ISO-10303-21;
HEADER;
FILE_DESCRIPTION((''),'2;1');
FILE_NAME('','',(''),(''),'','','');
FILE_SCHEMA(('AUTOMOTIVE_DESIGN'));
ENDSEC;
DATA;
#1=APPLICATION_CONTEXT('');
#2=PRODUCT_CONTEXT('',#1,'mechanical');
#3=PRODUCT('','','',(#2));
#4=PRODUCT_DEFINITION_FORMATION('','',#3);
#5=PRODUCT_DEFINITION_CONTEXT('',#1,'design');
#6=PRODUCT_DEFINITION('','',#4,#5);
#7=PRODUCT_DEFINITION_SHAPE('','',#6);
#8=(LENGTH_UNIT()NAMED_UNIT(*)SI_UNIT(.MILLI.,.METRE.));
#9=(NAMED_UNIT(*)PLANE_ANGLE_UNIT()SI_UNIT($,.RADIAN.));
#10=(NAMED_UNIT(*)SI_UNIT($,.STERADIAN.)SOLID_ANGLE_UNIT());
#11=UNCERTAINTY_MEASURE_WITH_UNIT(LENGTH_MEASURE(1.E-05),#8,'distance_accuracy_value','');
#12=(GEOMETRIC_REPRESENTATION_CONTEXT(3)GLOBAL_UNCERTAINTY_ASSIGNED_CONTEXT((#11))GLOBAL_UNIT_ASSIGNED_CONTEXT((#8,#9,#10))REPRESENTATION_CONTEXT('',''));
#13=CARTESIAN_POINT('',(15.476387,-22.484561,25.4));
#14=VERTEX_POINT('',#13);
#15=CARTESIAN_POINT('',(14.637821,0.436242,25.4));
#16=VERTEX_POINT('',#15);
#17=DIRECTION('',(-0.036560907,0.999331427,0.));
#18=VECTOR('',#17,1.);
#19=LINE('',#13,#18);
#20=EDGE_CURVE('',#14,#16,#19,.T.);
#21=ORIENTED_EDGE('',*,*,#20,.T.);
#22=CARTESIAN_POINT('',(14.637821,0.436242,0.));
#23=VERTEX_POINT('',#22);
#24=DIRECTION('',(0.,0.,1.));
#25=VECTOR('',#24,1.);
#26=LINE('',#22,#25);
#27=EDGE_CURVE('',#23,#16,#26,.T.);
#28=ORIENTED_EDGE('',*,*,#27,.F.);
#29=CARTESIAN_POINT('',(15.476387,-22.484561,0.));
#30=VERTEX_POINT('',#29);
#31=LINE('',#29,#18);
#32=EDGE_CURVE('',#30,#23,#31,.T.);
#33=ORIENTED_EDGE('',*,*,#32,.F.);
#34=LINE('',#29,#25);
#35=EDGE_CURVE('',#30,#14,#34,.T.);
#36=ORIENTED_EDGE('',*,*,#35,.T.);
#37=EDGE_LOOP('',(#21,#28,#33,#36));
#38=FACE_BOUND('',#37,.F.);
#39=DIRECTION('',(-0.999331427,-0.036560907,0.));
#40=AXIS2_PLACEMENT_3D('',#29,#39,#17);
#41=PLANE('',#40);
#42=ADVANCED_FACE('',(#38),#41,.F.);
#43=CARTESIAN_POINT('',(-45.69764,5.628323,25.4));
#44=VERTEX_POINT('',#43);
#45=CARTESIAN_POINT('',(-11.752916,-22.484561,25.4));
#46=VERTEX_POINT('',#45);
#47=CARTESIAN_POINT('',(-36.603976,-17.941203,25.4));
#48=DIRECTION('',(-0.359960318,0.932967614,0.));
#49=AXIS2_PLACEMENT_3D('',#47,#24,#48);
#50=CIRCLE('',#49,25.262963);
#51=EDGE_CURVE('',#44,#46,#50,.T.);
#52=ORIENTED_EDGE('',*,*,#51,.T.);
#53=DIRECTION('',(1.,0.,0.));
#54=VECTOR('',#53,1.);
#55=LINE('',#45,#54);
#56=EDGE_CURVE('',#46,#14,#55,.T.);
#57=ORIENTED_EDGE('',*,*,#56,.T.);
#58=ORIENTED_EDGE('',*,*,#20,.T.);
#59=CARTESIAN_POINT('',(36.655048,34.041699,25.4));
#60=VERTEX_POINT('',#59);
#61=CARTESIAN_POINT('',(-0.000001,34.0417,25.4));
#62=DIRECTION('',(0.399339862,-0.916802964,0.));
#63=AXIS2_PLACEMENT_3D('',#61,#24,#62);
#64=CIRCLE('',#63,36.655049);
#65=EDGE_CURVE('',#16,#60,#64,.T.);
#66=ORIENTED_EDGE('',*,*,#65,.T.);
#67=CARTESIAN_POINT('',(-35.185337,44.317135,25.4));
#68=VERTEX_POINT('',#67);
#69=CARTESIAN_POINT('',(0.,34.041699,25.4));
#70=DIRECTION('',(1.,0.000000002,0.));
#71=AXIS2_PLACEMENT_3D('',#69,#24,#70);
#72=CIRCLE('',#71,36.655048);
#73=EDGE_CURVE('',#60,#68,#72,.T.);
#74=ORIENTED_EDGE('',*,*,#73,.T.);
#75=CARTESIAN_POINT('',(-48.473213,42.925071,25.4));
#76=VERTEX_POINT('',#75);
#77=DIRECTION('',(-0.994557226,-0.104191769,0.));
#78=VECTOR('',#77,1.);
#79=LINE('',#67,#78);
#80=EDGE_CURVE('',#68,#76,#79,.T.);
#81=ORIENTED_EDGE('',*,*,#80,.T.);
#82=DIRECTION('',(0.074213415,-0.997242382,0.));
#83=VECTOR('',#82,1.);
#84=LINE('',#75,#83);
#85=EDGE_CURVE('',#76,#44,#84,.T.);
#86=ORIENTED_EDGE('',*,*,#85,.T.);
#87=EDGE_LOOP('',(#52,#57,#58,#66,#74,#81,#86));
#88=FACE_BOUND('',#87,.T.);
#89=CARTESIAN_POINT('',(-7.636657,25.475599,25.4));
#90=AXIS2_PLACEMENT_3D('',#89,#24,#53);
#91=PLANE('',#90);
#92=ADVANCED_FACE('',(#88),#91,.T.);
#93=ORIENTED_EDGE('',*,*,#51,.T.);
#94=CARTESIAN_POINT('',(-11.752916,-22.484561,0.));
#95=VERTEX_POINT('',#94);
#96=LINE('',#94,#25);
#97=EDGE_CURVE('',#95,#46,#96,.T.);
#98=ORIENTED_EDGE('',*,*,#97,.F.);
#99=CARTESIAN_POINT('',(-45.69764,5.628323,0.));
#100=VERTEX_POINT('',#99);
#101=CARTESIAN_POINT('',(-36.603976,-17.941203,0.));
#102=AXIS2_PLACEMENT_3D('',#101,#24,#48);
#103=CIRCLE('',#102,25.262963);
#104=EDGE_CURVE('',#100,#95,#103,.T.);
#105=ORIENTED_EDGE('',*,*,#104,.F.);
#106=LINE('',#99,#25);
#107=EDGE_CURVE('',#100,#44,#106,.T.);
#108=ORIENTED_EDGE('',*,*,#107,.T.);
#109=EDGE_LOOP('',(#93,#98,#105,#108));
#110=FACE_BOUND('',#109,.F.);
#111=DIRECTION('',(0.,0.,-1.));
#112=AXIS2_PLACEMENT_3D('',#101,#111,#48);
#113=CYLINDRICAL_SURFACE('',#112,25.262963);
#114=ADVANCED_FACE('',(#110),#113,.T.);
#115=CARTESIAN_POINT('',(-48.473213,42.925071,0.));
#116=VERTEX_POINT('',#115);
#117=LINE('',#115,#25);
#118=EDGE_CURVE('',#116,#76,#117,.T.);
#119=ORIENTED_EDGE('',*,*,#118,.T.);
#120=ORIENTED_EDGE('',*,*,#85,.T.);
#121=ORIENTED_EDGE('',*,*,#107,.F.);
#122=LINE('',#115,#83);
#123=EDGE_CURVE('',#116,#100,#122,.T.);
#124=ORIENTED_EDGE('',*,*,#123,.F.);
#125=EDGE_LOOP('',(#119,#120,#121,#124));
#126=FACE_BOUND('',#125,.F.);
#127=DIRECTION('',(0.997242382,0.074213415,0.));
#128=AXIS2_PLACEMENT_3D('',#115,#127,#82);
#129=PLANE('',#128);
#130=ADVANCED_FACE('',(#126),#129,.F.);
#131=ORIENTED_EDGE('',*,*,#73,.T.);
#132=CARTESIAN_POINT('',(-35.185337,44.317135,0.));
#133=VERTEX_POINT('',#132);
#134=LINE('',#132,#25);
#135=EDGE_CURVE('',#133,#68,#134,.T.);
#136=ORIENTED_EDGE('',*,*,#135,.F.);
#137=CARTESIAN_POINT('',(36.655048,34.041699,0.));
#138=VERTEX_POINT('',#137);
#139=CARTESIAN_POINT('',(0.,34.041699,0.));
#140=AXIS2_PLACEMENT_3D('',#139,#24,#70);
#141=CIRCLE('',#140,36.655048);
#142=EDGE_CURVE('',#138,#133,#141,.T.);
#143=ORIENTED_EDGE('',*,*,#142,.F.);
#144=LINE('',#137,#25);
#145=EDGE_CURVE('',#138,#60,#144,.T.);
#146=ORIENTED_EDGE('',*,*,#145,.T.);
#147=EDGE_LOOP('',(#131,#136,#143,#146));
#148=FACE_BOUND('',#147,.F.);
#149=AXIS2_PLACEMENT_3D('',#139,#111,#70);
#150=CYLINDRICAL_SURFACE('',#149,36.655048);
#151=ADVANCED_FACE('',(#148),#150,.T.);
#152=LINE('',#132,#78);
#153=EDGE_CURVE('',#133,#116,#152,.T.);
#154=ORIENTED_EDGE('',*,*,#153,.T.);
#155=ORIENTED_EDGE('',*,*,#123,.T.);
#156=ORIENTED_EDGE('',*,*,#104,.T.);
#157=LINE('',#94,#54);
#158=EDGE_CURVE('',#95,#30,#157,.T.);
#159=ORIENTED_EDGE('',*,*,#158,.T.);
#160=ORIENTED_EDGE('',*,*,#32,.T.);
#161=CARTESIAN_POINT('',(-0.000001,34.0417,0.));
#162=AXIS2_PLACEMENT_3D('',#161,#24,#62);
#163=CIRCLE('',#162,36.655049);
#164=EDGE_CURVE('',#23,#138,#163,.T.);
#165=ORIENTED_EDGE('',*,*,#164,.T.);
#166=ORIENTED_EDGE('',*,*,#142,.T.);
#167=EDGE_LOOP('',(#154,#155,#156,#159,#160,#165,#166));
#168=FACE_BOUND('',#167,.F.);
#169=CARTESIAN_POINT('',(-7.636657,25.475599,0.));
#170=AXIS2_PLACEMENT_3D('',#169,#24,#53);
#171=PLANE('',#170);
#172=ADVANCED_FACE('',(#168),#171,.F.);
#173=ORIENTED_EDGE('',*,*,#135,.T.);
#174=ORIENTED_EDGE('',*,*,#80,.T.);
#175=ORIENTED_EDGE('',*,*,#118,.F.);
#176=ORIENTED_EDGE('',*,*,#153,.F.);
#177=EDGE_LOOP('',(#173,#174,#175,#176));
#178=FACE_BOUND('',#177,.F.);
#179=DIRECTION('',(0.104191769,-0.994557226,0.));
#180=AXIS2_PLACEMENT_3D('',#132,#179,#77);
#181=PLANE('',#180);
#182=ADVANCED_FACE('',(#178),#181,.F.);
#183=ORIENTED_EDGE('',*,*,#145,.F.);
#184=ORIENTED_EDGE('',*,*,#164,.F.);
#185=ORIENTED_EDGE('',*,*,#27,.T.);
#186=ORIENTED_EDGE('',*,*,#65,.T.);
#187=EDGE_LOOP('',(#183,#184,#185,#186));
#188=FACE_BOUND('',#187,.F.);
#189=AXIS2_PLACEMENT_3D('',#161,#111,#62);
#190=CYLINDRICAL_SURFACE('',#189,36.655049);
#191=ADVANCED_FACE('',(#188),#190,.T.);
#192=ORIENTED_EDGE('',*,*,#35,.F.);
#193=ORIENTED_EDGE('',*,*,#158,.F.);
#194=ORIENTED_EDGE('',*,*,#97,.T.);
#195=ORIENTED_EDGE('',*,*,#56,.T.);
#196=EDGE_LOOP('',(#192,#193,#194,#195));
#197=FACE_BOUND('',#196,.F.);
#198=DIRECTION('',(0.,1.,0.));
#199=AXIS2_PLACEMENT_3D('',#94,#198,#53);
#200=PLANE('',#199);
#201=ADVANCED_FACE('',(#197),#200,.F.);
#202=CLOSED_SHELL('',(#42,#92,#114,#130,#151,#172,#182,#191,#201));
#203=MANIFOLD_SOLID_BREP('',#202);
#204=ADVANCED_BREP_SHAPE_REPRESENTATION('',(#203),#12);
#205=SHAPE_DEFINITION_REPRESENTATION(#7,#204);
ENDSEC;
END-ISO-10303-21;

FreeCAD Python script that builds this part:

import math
import FreeCAD as App
import Part
import Sketcher

V = App.Vector
Q = App.Units.Quantity

doc = App.newDocument("Part")
body = doc.addObject("PartDesign::Body", "Body")

# Sketch on XY plane
sketch1 = body.newObject("Sketcher::SketchObject", "Sketch")
sketch1.AttachmentSupport = (doc.getObject("XY_Plane"), [""])
sketch1.MapMode = "FlatFace"
sketch1.addGeometry([
    Part.ArcOfCircle(Part.Circle(V(0, 34, 0), V(0, 0, 1), 37), math.radians(-66), math.radians(0)),  # 0
    Part.ArcOfCircle(Part.Circle(V(0, 34, 0), V(0, 0, 1), 37), math.radians(0), math.radians(164)),  # 1
    Part.LineSegment(V(-35, 44, 0), V(-48, 43, 0)),  # 2
    Part.LineSegment(V(-48, 43, 0), V(-46, 6, 0)),  # 3
    Part.ArcOfCircle(Part.Circle(V(-37, -18, 0), V(0, 0, 1), 25), math.radians(111), math.radians(350)),  # 4
    Part.LineSegment(V(-12, -22, 0), V(15, -22, 0)),  # 5
    Part.LineSegment(V(15, -22, 0), V(15, 0, 0)),  # 6
], False)
sketch1.addConstraint([
    Sketcher.Constraint("Tangent", 0, 2, 1, 1),
    Sketcher.Constraint("Coincident", 1, 2, 2, 1),
    Sketcher.Constraint("Coincident", 2, 2, 3, 1),
    Sketcher.Constraint("Coincident", 3, 2, 4, 1),
    Sketcher.Constraint("Coincident", 4, 2, 5, 1),
    Sketcher.Constraint("Coincident", 5, 2, 6, 1),
    Sketcher.Constraint("Coincident", 6, 2, 0, 1),
    Sketcher.Constraint("Horizontal", 5),
    Sketcher.Constraint("Equal", 0, 1),
    Sketcher.Constraint("PointOnObject", 0, 3, -2),
    Sketcher.Constraint("Horizontal", 1, 3, 0, 2),
    Sketcher.Constraint("Radius", 0, Q("36.655049 mm")),
    Sketcher.Constraint("Radius", 4, Q("25.262963 mm")),
    Sketcher.Constraint("DistanceY", -1, 1, 0, 3, Q("34.0417 mm")),
    Sketcher.Constraint("DistanceY", 4, 3, 1, 3, Q("51.982902 mm")),
    Sketcher.Constraint("DistanceX", 5, 1, 5, 2, Q("27.229303 mm")),
    Sketcher.Constraint("DistanceY", -1, 1, 2, 2, Q("42.925071 mm")),
    Sketcher.Constraint("DistanceX", 3, 2, -1, 1, Q("45.69764 mm")),
    Sketcher.Constraint("DistanceY", 4, 2, -1, 1, Q("22.484561 mm")),
    Sketcher.Constraint("DistanceX", -1, 1, 6, 2, Q("14.637821 mm")),
    Sketcher.Constraint("DistanceX", 4, 3, 1, 2, Q("1.418639 mm")),
    Sketcher.Constraint("DistanceX", 2, 2, 0, 3, Q("48.473212 mm")),
    Sketcher.Constraint("DistanceY", 3, 2, 1, 2, Q("38.688812 mm")),
])
pad1 = body.newObject("PartDesign::Pad", "Pad")
pad1.Profile = sketch1
pad1.Length = Q("1 in")

doc.recompute()
